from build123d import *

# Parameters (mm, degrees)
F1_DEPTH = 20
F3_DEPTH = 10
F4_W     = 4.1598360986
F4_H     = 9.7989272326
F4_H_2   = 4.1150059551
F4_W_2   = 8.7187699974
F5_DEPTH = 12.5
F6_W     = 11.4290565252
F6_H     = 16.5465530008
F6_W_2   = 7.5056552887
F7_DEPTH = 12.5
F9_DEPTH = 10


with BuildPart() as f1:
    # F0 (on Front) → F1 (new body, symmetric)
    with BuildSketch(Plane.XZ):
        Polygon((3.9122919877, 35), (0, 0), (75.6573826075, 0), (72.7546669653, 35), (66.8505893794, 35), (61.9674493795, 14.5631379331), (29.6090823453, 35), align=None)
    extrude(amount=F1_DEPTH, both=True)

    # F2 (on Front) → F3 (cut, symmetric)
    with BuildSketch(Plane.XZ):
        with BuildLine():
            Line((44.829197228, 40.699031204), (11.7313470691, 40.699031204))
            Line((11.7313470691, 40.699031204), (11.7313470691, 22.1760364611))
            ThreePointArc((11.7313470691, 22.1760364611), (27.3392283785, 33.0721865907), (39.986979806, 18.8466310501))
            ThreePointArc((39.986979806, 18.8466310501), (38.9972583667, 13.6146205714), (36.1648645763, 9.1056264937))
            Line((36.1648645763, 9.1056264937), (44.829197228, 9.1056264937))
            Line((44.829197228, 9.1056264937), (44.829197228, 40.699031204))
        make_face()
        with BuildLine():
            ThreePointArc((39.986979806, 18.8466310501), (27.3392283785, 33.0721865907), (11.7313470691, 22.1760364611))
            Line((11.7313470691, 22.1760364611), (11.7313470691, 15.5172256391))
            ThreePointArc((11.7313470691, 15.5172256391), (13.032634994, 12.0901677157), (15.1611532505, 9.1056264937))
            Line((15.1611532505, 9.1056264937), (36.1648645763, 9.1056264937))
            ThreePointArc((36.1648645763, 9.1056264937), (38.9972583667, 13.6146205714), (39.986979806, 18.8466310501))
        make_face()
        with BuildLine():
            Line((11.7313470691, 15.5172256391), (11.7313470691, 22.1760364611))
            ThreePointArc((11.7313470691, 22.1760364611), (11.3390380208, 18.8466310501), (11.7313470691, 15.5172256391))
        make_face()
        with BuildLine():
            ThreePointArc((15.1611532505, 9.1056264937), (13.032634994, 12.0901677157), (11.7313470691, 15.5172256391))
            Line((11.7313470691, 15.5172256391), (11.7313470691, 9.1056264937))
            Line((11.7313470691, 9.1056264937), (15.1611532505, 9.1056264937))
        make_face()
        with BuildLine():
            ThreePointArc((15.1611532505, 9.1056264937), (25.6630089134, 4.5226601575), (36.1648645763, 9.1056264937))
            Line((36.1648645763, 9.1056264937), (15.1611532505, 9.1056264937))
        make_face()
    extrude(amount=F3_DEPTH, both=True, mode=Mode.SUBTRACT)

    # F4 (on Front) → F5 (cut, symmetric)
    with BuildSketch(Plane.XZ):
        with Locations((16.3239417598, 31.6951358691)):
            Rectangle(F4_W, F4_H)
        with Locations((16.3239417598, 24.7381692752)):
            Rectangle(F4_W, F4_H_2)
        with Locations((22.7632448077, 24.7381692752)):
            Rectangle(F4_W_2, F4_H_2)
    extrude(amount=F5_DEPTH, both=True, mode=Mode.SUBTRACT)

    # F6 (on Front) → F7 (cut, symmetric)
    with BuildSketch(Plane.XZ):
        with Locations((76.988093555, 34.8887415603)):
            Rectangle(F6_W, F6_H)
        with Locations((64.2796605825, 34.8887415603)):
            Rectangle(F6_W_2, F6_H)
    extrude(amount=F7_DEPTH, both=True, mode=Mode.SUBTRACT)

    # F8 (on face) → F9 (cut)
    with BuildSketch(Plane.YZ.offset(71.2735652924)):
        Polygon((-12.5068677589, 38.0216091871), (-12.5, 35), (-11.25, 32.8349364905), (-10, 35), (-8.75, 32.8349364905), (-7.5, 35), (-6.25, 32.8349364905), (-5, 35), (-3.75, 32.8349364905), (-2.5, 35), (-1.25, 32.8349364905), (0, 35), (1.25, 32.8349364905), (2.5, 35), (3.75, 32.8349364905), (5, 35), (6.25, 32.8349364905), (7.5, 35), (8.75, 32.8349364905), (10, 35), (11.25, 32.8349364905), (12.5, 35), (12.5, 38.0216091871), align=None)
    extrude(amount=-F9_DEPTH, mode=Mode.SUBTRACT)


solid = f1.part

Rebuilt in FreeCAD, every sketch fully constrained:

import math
import FreeCAD as App
import Part
import Sketcher
Q = App.Units.Quantity

doc = App.newDocument("Part")
body = doc.addObject("PartDesign::Body", "Body")

sketch1 = doc.addObject("Sketcher::SketchObject", "Sketch")
body.addObject(sketch1)
sketch1.AttachmentSupport = (doc.XZ_Plane, [""])
sketch1.MapMode = "FlatFace"
sketch1.addGeometry(Part.LineSegment(App.Vector(4, 35, 0), App.Vector(0, 0, 0)), False)
sketch1.addGeometry(Part.LineSegment(App.Vector(0, 0, 0), App.Vector(76, 0, 0)), False)
sketch1.addGeometry(Part.LineSegment(App.Vector(76, 0, 0), App.Vector(73, 35, 0)), False)
sketch1.addGeometry(Part.LineSegment(App.Vector(73, 35, 0), App.Vector(67, 35, 0)), False)
sketch1.addGeometry(Part.LineSegment(App.Vector(67, 35, 0), App.Vector(62, 15, 0)), False)
sketch1.addGeometry(Part.LineSegment(App.Vector(62, 15, 0), App.Vector(30, 35, 0)), False)
sketch1.addGeometry(Part.LineSegment(App.Vector(30, 35, 0), App.Vector(4, 35, 0)), False)
sketch1.addConstraint(Sketcher.Constraint("Coincident", 0, 2, 1, 1))
sketch1.addConstraint(Sketcher.Constraint("Coincident", 1, 2, 2, 1))
sketch1.addConstraint(Sketcher.Constraint("Coincident", 2, 2, 3, 1))
sketch1.addConstraint(Sketcher.Constraint("Coincident", 3, 2, 4, 1))
sketch1.addConstraint(Sketcher.Constraint("Coincident", 4, 2, 5, 1))
sketch1.addConstraint(Sketcher.Constraint("Coincident", 5, 2, 6, 1))
sketch1.addConstraint(Sketcher.Constraint("Coincident", 6, 2, 0, 1))
sketch1.addConstraint(Sketcher.Constraint("Horizontal", 1))
sketch1.addConstraint(Sketcher.Constraint("Horizontal", 3))
sketch1.addConstraint(Sketcher.Constraint("Horizontal", 6))
sketch1.addConstraint(Sketcher.Constraint("Coincident", 0, 2, -1, 1))
sketch1.addConstraint(Sketcher.Constraint("Horizontal", 3, 2, 5, 2))
sketch1.addConstraint(Sketcher.Constraint("DistanceY", -1, 1, 2, 2, Q("35 mm")))
sketch1.addConstraint(Sketcher.Constraint("DistanceX", 6, 2, 6, 1, Q("25.69679 mm")))
sketch1.addConstraint(Sketcher.Constraint("DistanceX", 5, 2, 1, 2, Q("46.0483 mm")))
sketch1.addConstraint(Sketcher.Constraint("Distance", 0, Q("35.217979 mm")))
sketch1.addConstraint(Sketcher.Constraint("Distance", 2, Q("35.120162 mm")))
sketch1.addConstraint(Sketcher.Constraint("Distance", 4, Q("21.012149 mm")))
sketch1.addConstraint(Sketcher.Constraint("Distance", 5, Q("38.271781 mm")))
sketch1.addConstraint(Sketcher.Constraint("DistanceX", 3, 2, 3, 1, Q("5.904078 mm")))
pad1 = doc.addObject("PartDesign::Pad", "Pad")
body.addObject(pad1)
pad1.Profile = sketch1
pad1.Length = 40
pad1.Midplane = True

sketch2 = doc.addObject("Sketcher::SketchObject", "Sketch001")
body.addObject(sketch2)
sketch2.AttachmentSupport = (doc.XZ_Plane, [""])
sketch2.MapMode = "FlatFace"
sketch2.addGeometry(Part.LineSegment(App.Vector(44.8, 40.7, 0), App.Vector(11.7, 40.7, 0)), False)
sketch2.addGeometry(Part.LineSegment(App.Vector(11.7, 40.7, 0), App.Vector(11.7, 22.2, 0)), False)
sketch2.addGeometry(Part.ArcOfCircle(Part.Circle(App.Vector(25.7, 18.8, 0), App.Vector(0, 0, 1), 14.3), math.radians(167), math.radians(193)), False)
sketch2.addGeometry(Part.LineSegment(App.Vector(11.7, 15.5, 0), App.Vector(11.7, 9.1, 0)), False)
sketch2.addGeometry(Part.LineSegment(App.Vector(11.7, 9.1, 0), App.Vector(15.2, 9.1, 0)), False)
sketch2.addGeometry(Part.ArcOfCircle(Part.Circle(App.Vector(25.7, 18.8, 0), App.Vector(0, 0, 1), 14.3), math.radians(-137), math.radians(-43)), False)
sketch2.addGeometry(Part.LineSegment(App.Vector(36.2, 9.1, 0), App.Vector(44.8, 9.1, 0)), False)
sketch2.addGeometry(Part.LineSegment(App.Vector(44.8, 9.1, 0), App.Vector(44.8, 40.7, 0)), False)
sketch2.addConstraint(Sketcher.Constraint("Coincident", 0, 2, 1, 1))
sketch2.addConstraint(Sketcher.Constraint("Coincident", 1, 2, 2, 1))
sketch2.addConstraint(Sketcher.Constraint("Coincident", 2, 2, 3, 1))
sketch2.addConstraint(Sketcher.Constraint("Coincident", 3, 2, 4, 1))
sketch2.addConstraint(Sketcher.Constraint("Coincident", 4, 2, 5, 1))
sketch2.addConstraint(Sketcher.Constraint("Coincident", 5, 2, 6, 1))
sketch2.addConstraint(Sketcher.Constraint("Coincident", 6, 2, 7, 1))
sketch2.addConstraint(Sketcher.Constraint("Coincident", 7, 2, 0, 1))
sketch2.addConstraint(Sketcher.Constraint("Horizontal", 0))
sketch2.addConstraint(Sketcher.Constraint("Vertical", 1))
sketch2.addConstraint(Sketcher.Constraint("Vertical", 3))
sketch2.addConstraint(Sketcher.Constraint("Horizontal", 4))
sketch2.addConstraint(Sketcher.Constraint("Horizontal", 6))
sketch2.addConstraint(Sketcher.Constraint("Vertical", 7))
sketch2.addConstraint(Sketcher.Constraint("Coincident", 5, 3, 2, 3))
sketch2.addConstraint(Sketcher.Constraint("Equal", 2, 5))
sketch2.addConstraint(Sketcher.Constraint("Horizontal", 4, 2, 5, 2))
sketch2.addConstraint(Sketcher.Constraint("Vertical", 1, 2, 2, 2))
sketch2.addConstraint(Sketcher.Constraint("Radius", 2, Q("14.323971 mm")))
sketch2.addConstraint(Sketcher.Constraint("DistanceY", 3, 2, 3, 1, Q("6.411599 mm")))
sketch2.addConstraint(Sketcher.Constraint("DistanceX", 0, 2, 0, 1, Q("33.09785 mm")))
sketch2.addConstraint(Sketcher.Constraint("DistanceY", 5, 3, 0, 2, Q("21.8524 mm")))
sketch2.addConstraint(Sketcher.Constraint("DistanceX", 4, 1, 4, 2, Q("3.429806 mm")))
sketch2.addConstraint(Sketcher.Constraint("DistanceX", -1, 1, 2, 3, Q("25.663009 mm")))
sketch2.addConstraint(Sketcher.Constraint("DistanceY", -1, 1, 2, 3, Q("18.846631 mm")))
pocket1 = doc.addObject("PartDesign::Pocket", "Pocket")
body.addObject(pocket1)
pocket1.Profile = sketch2
pocket1.Length = 20
pocket1.Midplane = True

sketch3 = doc.addObject("Sketcher::SketchObject", "Sketch002")
body.addObject(sketch3)
sketch3.AttachmentSupport = (doc.XZ_Plane, [""])
sketch3.MapMode = "FlatFace"
sketch3.addGeometry(Part.LineSegment(App.Vector(14.2, 36.6, 0), App.Vector(14.2, 22.7, 0)), False)
sketch3.addGeometry(Part.LineSegment(App.Vector(14.2, 22.7, 0), App.Vector(27.1, 22.7, 0)), False)
sketch3.addGeometry(Part.LineSegment(App.Vector(27.1, 22.7, 0), App.Vector(27.1, 26.8, 0)), False)
sketch3.addGeometry(Part.LineSegment(App.Vector(27.1, 26.8, 0), App.Vector(18.4, 26.8, 0)), False)
sketch3.addGeometry(Part.LineSegment(App.Vector(18.4, 26.8, 0), App.Vector(18.4, 36.6, 0)), False)
sketch3.addGeometry(Part.LineSegment(App.Vector(18.4, 36.6, 0), App.Vector(14.2, 36.6, 0)), False)
sketch3.addConstraint(Sketcher.Constraint("Coincident", 0, 2, 1, 1))
sketch3.addConstraint(Sketcher.Constraint("Coincident", 1, 2, 2, 1))
sketch3.addConstraint(Sketcher.Constraint("Coincident", 2, 2, 3, 1))
sketch3.addConstraint(Sketcher.Constraint("Coincident", 3, 2, 4, 1))
sketch3.addConstraint(Sketcher.Constraint("Coincident", 4, 2, 5, 1))
sketch3.addConstraint(Sketcher.Constraint("Coincident", 5, 2, 0, 1))
sketch3.addConstraint(Sketcher.Constraint("Vertical", 0))
sketch3.addConstraint(Sketcher.Constraint("Horizontal", 1))
sketch3.addConstraint(Sketcher.Constraint("Vertical", 2))
sketch3.addConstraint(Sketcher.Constraint("Horizontal", 3))
sketch3.addConstraint(Sketcher.Constraint("Vertical", 4))
sketch3.addConstraint(Sketcher.Constraint("Horizontal", 5))
sketch3.addConstraint(Sketcher.Constraint("DistanceX", 3, 2, 3, 1, Q("8.71877 mm")))
sketch3.addConstraint(Sketcher.Constraint("DistanceY", -1, 1, 4, 2, Q("36.594599 mm")))
sketch3.addConstraint(Sketcher.Constraint("DistanceX", 1, 1, 1, 2, Q("12.878606 mm")))
sketch3.addConstraint(Sketcher.Constraint("DistanceY", 0, 2, 0, 1, Q("13.913933 mm")))
sketch3.addConstraint(Sketcher.Constraint("DistanceY", 2, 1, 2, 2, Q("4.115006 mm")))
sketch3.addConstraint(Sketcher.Constraint("DistanceX", -1, 1, 1, 2, Q("27.12263 mm")))
pocket2 = doc.addObject("PartDesign::Pocket", "Pocket001")
body.addObject(pocket2)
pocket2.Profile = sketch3
pocket2.Length = 25
pocket2.Midplane = True

sketch4 = doc.addObject("Sketcher::SketchObject", "Sketch003")
body.addObject(sketch4)
sketch4.AttachmentSupport = (doc.XZ_Plane, [""])
sketch4.MapMode = "FlatFace"
sketch4.addGeometry(Part.LineSegment(App.Vector(71, 43, 0), App.Vector(71, 27, 0)), False)
sketch4.addGeometry(Part.LineSegment(App.Vector(71, 27, 0), App.Vector(83, 27, 0)), False)
sketch4.addGeometry(Part.LineSegment(App.Vector(83, 27, 0), App.Vector(83, 43, 0)), False)
sketch4.addGeometry(Part.LineSegment(App.Vector(83, 43, 0), App.Vector(71, 43, 0)), False)
sketch4.addGeometry(Part.LineSegment(App.Vector(61, 43, 0), App.Vector(61, 27, 0)), False)
sketch4.addGeometry(Part.LineSegment(App.Vector(61, 27, 0), App.Vector(68, 27, 0)), False)
sketch4.addGeometry(Part.LineSegment(App.Vector(68, 27, 0), App.Vector(68, 43, 0)), False)
sketch4.addGeometry(Part.LineSegment(App.Vector(68, 43, 0), App.Vector(61, 43, 0)), False)
sketch4.addConstraint(Sketcher.Constraint("Coincident", 0, 2, 1, 1))
sketch4.addConstraint(Sketcher.Constraint("Coincident", 1, 2, 2, 1))
sketch4.addConstraint(Sketcher.Constraint("Coincident", 2, 2, 3, 1))
sketch4.addConstraint(Sketcher.Constraint("Coincident", 3, 2, 0, 1))
sketch4.addConstraint(Sketcher.Constraint("Coincident", 4, 2, 5, 1))
sketch4.addConstraint(Sketcher.Constraint("Coincident", 5, 2, 6, 1))
sketch4.addConstraint(Sketcher.Constraint("Coincident", 6, 2, 7, 1))
sketch4.addConstraint(Sketcher.Constraint("Coincident", 7, 2, 4, 1))
sketch4.addConstraint(Sketcher.Constraint("Vertical", 0))
sketch4.addConstraint(Sketcher.Constraint("Horizontal", 1))
sketch4.addConstraint(Sketcher.Constraint("Vertical", 2))
sketch4.addConstraint(Sketcher.Constraint("Horizontal", 3))
sketch4.addConstraint(Sketcher.Constraint("Vertical", 4))
sketch4.addConstraint(Sketcher.Constraint("Horizontal", 5))
sketch4.addConstraint(Sketcher.Constraint("Vertical", 6))
sketch4.addConstraint(Sketcher.Constraint("Horizontal", 7))
sketch4.addConstraint(Sketcher.Constraint("Horizontal", 1, 2, 4, 2))
sketch4.addConstraint(Sketcher.Constraint("Horizontal", 3, 2, 6, 2))
sketch4.addConstraint(Sketcher.Constraint("DistanceX", 1, 1, 1, 2, Q("11.429057 mm")))
sketch4.addConstraint(Sketcher.Constraint("DistanceX", 5, 1, 5, 2, Q("7.505655 mm")))
sketch4.addConstraint(Sketcher.Constraint("DistanceY", 0, 2, 0, 1, Q("16.546553 mm")))
sketch4.addConstraint(Sketcher.Constraint("DistanceX", -1, 1, 1, 2, Q("82.702622 mm")))
sketch4.addConstraint(Sketcher.Constraint("DistanceY", -1, 1, 2, 2, Q("43.162018 mm")))
sketch4.addConstraint(Sketcher.Constraint("DistanceX", -1, 1, 5, 2, Q("68.032488 mm")))
pocket3 = doc.addObject("PartDesign::Pocket", "Pocket002")
body.addObject(pocket3)
pocket3.Profile = sketch4
pocket3.Length = 25
pocket3.Midplane = True

sketch5 = doc.addObject("Sketcher::SketchObject", "Sketch004")
body.addObject(sketch5)
sketch5.AttachmentSupport = (doc.YZ_Plane, [""])
sketch5.MapMode = "FlatFace"
sketch5.AttachmentOffset = App.Placement(App.Vector(0, 0, 71.273565), App.Rotation())
sketch5.addGeometry(Part.LineSegment(App.Vector(-12.5, 38, 0), App.Vector(-12.5, 35, 0)), False)
sketch5.addGeometry(Part.LineSegment(App.Vector(-12.5, 35, 0), App.Vector(-11.2, 32.8, 0)), False)
sketch5.addGeometry(Part.LineSegment(App.Vector(-11.2, 32.8, 0), App.Vector(-10, 35, 0)), False)
sketch5.addGeometry(Part.LineSegment(App.Vector(-10, 35, 0), App.Vector(-8.8, 32.8, 0)), False)
sketch5.addGeometry(Part.LineSegment(App.Vector(-8.8, 32.8, 0), App.Vector(-7.5, 35, 0)), False)
sketch5.addGeometry(Part.LineSegment(App.Vector(-7.5, 35, 0), App.Vector(-6.2, 32.8, 0)), False)
sketch5.addGeometry(Part.LineSegment(App.Vector(-6.2, 32.8, 0), App.Vector(-5, 35, 0)), False)
sketch5.addGeometry(Part.LineSegment(App.Vector(-5, 35, 0), App.Vector(-3.8, 32.8, 0)), False)
sketch5.addGeometry(Part.LineSegment(App.Vector(-3.8, 32.8, 0), App.Vector(-2.5, 35, 0)), False)
sketch5.addGeometry(Part.LineSegment(App.Vector(-2.5, 35, 0), App.Vector(-1.2, 32.8, 0)), False)
sketch5.addGeometry(Part.LineSegment(App.Vector(-1.2, 32.8, 0), App.Vector(0, 35, 0)), False)
sketch5.addGeometry(Part.LineSegment(App.Vector(0, 35, 0), App.Vector(1.2, 32.8, 0)), False)
sketch5.addGeometry(Part.LineSegment(App.Vector(1.2, 32.8, 0), App.Vector(2.5, 35, 0)), False)
sketch5.addGeometry(Part.LineSegment(App.Vector(2.5, 35, 0), App.Vector(3.8, 32.8, 0)), False)
sketch5.addGeometry(Part.LineSegment(App.Vector(3.8, 32.8, 0), App.Vector(5, 35, 0)), False)
sketch5.addGeometry(Part.LineSegment(App.Vector(5, 35, 0), App.Vector(6.2, 32.8, 0)), False)
sketch5.addGeometry(Part.LineSegment(App.Vector(6.2, 32.8, 0), App.Vector(7.5, 35, 0)), False)
sketch5.addGeometry(Part.LineSegment(App.Vector(7.5, 35, 0), App.Vector(8.8, 32.8, 0)), False)
sketch5.addGeometry(Part.LineSegment(App.Vector(8.8, 32.8, 0), App.Vector(10, 35, 0)), False)
sketch5.addGeometry(Part.LineSegment(App.Vector(10, 35, 0), App.Vector(11.2, 32.8, 0)), False)
sketch5.addGeometry(Part.LineSegment(App.Vector(11.2, 32.8, 0), App.Vector(12.5, 35, 0)), False)
sketch5.addGeometry(Part.LineSegment(App.Vector(12.5, 35, 0), App.Vector(12.5, 38, 0)), False)
sketch5.addGeometry(Part.LineSegment(App.Vector(12.5, 38, 0), App.Vector(-12.5, 38, 0)), False)
sketch5.addConstraint(Sketcher.Constraint("Coincident", 0, 2, 1, 1))
sketch5.addConstraint(Sketcher.Constraint("Coincident", 1, 2, 2, 1))
sketch5.addConstraint(Sketcher.Constraint("Coincident", 2, 2, 3, 1))
sketch5.addConstraint(Sketcher.Constraint("Coincident", 3, 2, 4, 1))
sketch5.addConstraint(Sketcher.Constraint("Coincident", 4, 2, 5, 1))
sketch5.addConstraint(Sketcher.Constraint("Coincident", 5, 2, 6, 1))
sketch5.addConstraint(Sketcher.Constraint("Coincident", 6, 2, 7, 1))
sketch5.addConstraint(Sketcher.Constraint("Coincident", 7, 2, 8, 1))
sketch5.addConstraint(Sketcher.Constraint("Coincident", 8, 2, 9, 1))
sketch5.addConstraint(Sketcher.Constraint("Coincident", 9, 2, 10, 1))
sketch5.addConstraint(Sketcher.Constraint("Coincident", 10, 2, 11, 1))
sketch5.addConstraint(Sketcher.Constraint("Coincident", 11, 2, 12, 1))
sketch5.addConstraint(Sketcher.Constraint("Coincident", 12, 2, 13, 1))
sketch5.addConstraint(Sketcher.Constraint("Coincident", 13, 2, 14, 1))
sketch5.addConstraint(Sketcher.Constraint("Coincident", 14, 2, 15, 1))
sketch5.addConstraint(Sketcher.Constraint("Coincident", 15, 2, 16, 1))
sketch5.addConstraint(Sketcher.Constraint("Coincident", 16, 2, 17, 1))
sketch5.addConstraint(Sketcher.Constraint("Coincident", 17, 2, 18, 1))
sketch5.addConstraint(Sketcher.Constraint("Coincident", 18, 2, 19, 1))
sketch5.addConstraint(Sketcher.Constraint("Coincident", 19, 2, 20, 1))
sketch5.addConstraint(Sketcher.Constraint("Coincident", 20, 2, 21, 1))
sketch5.addConstraint(Sketcher.Constraint("Coincident", 21, 2, 22, 1))
sketch5.addConstraint(Sketcher.Constraint("Coincident", 22, 2, 0, 1))
sketch5.addConstraint(Sketcher.Constraint("Vertical", 21))
sketch5.addConstraint(Sketcher.Constraint("Horizontal", 22))
sketch5.addConstraint(Sketcher.Constraint("Symmetric", 9, 2, 11, 2, -2))
sketch5.addConstraint(Sketcher.Constraint("Symmetric", 8, 2, 12, 2, -2))
sketch5.addConstraint(Sketcher.Constraint("Symmetric", 7, 2, 13, 2, -2))
sketch5.addConstraint(Sketcher.Constraint("Symmetric", 6, 2, 14, 2, -2))
sketch5.addConstraint(Sketcher.Constraint("Symmetric", 5, 2, 15, 2, -2))
sketch5.addConstraint(Sketcher.Constraint("Symmetric", 4, 2, 16, 2, -2))
sketch5.addConstraint(Sketcher.Constraint("Symmetric", 3, 2, 17, 2, -2))
sketch5.addConstraint(Sketcher.Constraint("Symmetric", 2, 2, 18, 2, -2))
sketch5.addConstraint(Sketcher.Constraint("Symmetric", 1, 2, 19, 2, -2))
sketch5.addConstraint(Sketcher.Constraint("Symmetric", 0, 2, 20, 2, -2))
sketch5.addConstraint(Sketcher.Constraint("PointOnObject", 10, 2, -2))
sketch5.addConstraint(Sketcher.Constraint("Parallel", 1, 3))
sketch5.addConstraint(Sketcher.Constraint("Parallel", 2, 4))
sketch5.addConstraint(Sketcher.Constraint("Parallel", 3, 5))
sketch5.addConstraint(Sketcher.Constraint("Parallel", 4, 6))
sketch5.addConstraint(Sketcher.Constraint("Parallel", 5, 7))
sketch5.addConstraint(Sketcher.Constraint("Parallel", 6, 8))
sketch5.addConstraint(Sketcher.Constraint("Parallel", 7, 9))
sketch5.addConstraint(Sketcher.Constraint("Parallel", 8, 10))
sketch5.addConstraint(Sketcher.Constraint("Parallel", 9, 11))
sketch5.addConstraint(Sketcher.Constraint("Horizontal", 0, 2, 2, 2))
sketch5.addConstraint(Sketcher.Constraint("Horizontal", 1, 2, 3, 2))
sketch5.addConstraint(Sketcher.Constraint("Horizontal", 2, 2, 4, 2))
sketch5.addConstraint(Sketcher.Constraint("Horizontal", 3, 2, 5, 2))
sketch5.addConstraint(Sketcher.Constraint("Horizontal", 4, 2, 6, 2))
sketch5.addConstraint(Sketcher.Constraint("Horizontal", 5, 2, 7, 2))
sketch5.addConstraint(Sketcher.Constraint("Horizontal", 6, 2, 8, 2))
sketch5.addConstraint(Sketcher.Constraint("Horizontal", 7, 2, 9, 2))
sketch5.addConstraint(Sketcher.Constraint("Horizontal", 8, 2, 10, 2))
sketch5.addConstraint(Sketcher.Constraint("Angle", 1, Q("-60 deg")))
sketch5.addConstraint(Sketcher.Constraint("DistanceY", -1, 1, 0, 2, Q("35 mm")))
sketch5.addConstraint(Sketcher.Constraint("DistanceX", 2, 2, -1, 1, Q("10 mm")))
sketch5.addConstraint(Sketcher.Constraint("DistanceY", 21, 1, 21, 2, Q("3.021609 mm")))
sketch5.addConstraint(Sketcher.Constraint("DistanceX", 22, 2, 22, 1, Q("25.006868 mm")))
pocket4 = doc.addObject("PartDesign::Pocket", "Pocket003")
body.addObject(pocket4)
pocket4.Profile = sketch5
pocket4.Length = 10

doc.recompute()
